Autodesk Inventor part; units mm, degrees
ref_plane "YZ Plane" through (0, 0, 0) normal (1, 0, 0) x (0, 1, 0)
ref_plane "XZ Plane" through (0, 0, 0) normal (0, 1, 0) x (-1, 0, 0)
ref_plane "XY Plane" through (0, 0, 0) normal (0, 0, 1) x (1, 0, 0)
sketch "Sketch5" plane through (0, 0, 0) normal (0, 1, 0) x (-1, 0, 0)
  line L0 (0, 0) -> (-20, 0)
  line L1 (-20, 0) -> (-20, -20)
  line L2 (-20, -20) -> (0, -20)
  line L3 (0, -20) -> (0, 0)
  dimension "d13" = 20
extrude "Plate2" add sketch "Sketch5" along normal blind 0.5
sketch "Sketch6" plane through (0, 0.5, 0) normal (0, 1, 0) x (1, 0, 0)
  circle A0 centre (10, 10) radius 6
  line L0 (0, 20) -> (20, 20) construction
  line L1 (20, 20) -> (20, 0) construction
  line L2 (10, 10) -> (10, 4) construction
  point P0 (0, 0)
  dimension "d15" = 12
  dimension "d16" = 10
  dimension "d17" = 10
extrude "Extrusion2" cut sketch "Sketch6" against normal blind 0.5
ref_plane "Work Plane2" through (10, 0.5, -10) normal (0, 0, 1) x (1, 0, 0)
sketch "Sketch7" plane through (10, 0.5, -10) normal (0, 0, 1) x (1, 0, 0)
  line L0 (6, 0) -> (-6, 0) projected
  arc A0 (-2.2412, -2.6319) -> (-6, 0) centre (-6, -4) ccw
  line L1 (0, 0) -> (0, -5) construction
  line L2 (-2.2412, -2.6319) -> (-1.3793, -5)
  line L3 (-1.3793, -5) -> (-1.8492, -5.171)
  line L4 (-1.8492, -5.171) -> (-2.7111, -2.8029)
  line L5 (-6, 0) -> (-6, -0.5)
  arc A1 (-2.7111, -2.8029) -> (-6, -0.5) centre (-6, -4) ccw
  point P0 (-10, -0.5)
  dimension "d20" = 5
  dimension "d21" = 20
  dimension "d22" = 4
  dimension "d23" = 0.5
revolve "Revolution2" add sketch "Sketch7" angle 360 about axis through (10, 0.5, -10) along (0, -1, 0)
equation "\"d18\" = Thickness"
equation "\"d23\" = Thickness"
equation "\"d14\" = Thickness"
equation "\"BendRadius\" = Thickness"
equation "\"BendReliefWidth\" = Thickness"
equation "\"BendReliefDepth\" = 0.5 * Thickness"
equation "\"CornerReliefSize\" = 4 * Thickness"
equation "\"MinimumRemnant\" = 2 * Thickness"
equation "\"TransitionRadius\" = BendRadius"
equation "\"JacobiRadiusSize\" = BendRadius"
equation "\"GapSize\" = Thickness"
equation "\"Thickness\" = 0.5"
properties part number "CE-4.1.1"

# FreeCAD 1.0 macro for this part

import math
import FreeCAD as App
import Part
import Sketcher
Q = App.Units.Quantity

doc = App.newDocument("Part")
body = doc.addObject("PartDesign::Body", "Body")

# Sketch on XZ plane
sketch1 = body.newObject("Sketcher::SketchObject", "Sketch")
sketch1.AttachmentSupport = (doc.getObject("XZ_Plane"), [""])
sketch1.MapMode = "FlatFace"
sketch1.addGeometry(Part.LineSegment(App.Vector(0, -20, 0), App.Vector(0, 0, 0)), False)
sketch1.addGeometry(Part.LineSegment(App.Vector(0, 0, 0), App.Vector(20, 0, 0)), False)
sketch1.addGeometry(Part.LineSegment(App.Vector(20, 0, 0), App.Vector(20, -20, 0)), False)
sketch1.addGeometry(Part.LineSegment(App.Vector(20, -20, 0), App.Vector(0, -20, 0)), False)
sketch1.addConstraint(Sketcher.Constraint("Coincident", 0, 2, 1, 1))
sketch1.addConstraint(Sketcher.Constraint("Coincident", 1, 2, 2, 1))
sketch1.addConstraint(Sketcher.Constraint("Coincident", 2, 2, 3, 1))
sketch1.addConstraint(Sketcher.Constraint("Coincident", 3, 2, 0, 1))
sketch1.addConstraint(Sketcher.Constraint("Vertical", 0))
sketch1.addConstraint(Sketcher.Constraint("Horizontal", 1))
sketch1.addConstraint(Sketcher.Constraint("Vertical", 2))
sketch1.addConstraint(Sketcher.Constraint("Horizontal", 3))
sketch1.addConstraint(Sketcher.Constraint("Coincident", 0, 2, -1, 1))
sketch1.addConstraint(Sketcher.Constraint("Equal", 3, 0))
sketch1.addConstraint(Sketcher.Constraint("DistanceX", 1, 1, 1, 2, 20.0))
pad1 = body.newObject("PartDesign::Pad", "Pad")
pad1.Profile = sketch1
pad1.Length = 0.5
pad1.Reversed = True

# Sketch on XZ plane
sketch2 = body.newObject("Sketcher::SketchObject", "Sketch001")
sketch2.AttachmentSupport = (doc.getObject("XZ_Plane"), [""])
sketch2.MapMode = "FlatFace"
sketch2.AttachmentOffset = App.Placement(App.Vector(0, 0, -0.5), App.Rotation())
sketch2.addGeometry(Part.Circle(App.Vector(10, -10, 0), App.Vector(0, 0, 1), 6), False)
sketch2.addConstraint(Sketcher.Constraint("Diameter", 0, 12.0))
sketch2.addConstraint(Sketcher.Constraint("DistanceX", -1, 1, 0, 3, 10.0))
sketch2.addConstraint(Sketcher.Constraint("DistanceY", 0, 3, -1, 1, 10.0))
pocket1 = body.newObject("PartDesign::Pocket", "Pocket")
pocket1.Profile = sketch2
pocket1.Length = 0.5
pocket1.Reversed = True

# Sketch on XY plane
sketch3 = body.newObject("Sketcher::SketchObject", "Sketch002")
sketch3.AttachmentSupport = (doc.getObject("XY_Plane"), [""])
sketch3.MapMode = "FlatFace"
sketch3.AttachmentOffset = App.Placement(App.Vector(0, 0, -10), App.Rotation())
sketch3.addGeometry(Part.LineSegment(App.Vector(8.6207, -4.5, 0), App.Vector(7.7588, -2.1319, 0)), False)
sketch3.addGeometry(Part.ArcOfCircle(Part.Circle(App.Vector(4, -3.5, 0), App.Vector(0, 0, 1), 4.000034), math.radians(20.000117), math.radians(90)), False)
sketch3.addGeometry(Part.LineSegment(App.Vector(4, 0.5, 0), App.Vector(4, 0, 0)), False)
sketch3.addGeometry(Part.ArcOfCircle(Part.Circle(App.Vector(4, -3.5, 0), App.Vector(0, 0, 1), 3.499987), math.radians(20.000589), math.radians(90)), False)
sketch3.addGeometry(Part.LineSegment(App.Vector(7.2889, -2.3029, 0), App.Vector(8.1508, -4.671, 0)), False)
sketch3.addGeometry(Part.LineSegment(App.Vector(8.1508, -4.671, 0), App.Vector(8.6207, -4.5, 0)), False)
sketch3.addGeometry(Part.LineSegment(App.Vector(10, 0.5, 0), App.Vector(10, -4.671, 0)), True)  # axis
sketch3.addConstraint(Sketcher.Constraint("Tangent", 0, 2, 1, 1))
sketch3.addConstraint(Sketcher.Constraint("Coincident", 1, 2, 2, 1))
sketch3.addConstraint(Sketcher.Constraint("Coincident", 2, 2, 3, 2))
sketch3.addConstraint(Sketcher.Constraint("Tangent", 3, 1, 4, 1))
sketch3.addConstraint(Sketcher.Constraint("Coincident", 4, 2, 5, 1))
sketch3.addConstraint(Sketcher.Constraint("Coincident", 5, 2, 0, 1))
sketch3.addConstraint(Sketcher.Constraint("Vertical", 2))
sketch3.addConstraint(Sketcher.Constraint("Vertical", 6))
sketch3.addConstraint(Sketcher.Constraint("Coincident", 3, 3, 1, 3))
sketch3.addConstraint(Sketcher.Constraint("PointOnObject", 2, 2, -1))
sketch3.addConstraint(Sketcher.Constraint("Parallel", 0, 4))
sketch3.addConstraint(Sketcher.Constraint("Perpendicular", 4, 5))
sketch3.addConstraint(Sketcher.Constraint("Horizontal", 1, 2, 6, 1))
sketch3.addConstraint(Sketcher.Constraint("Horizontal", 4, 2, 6, 2))
sketch3.addConstraint(Sketcher.Constraint("Vertical", 3, 3, 1, 2))
sketch3.addConstraint(Sketcher.Constraint("Radius", 1, 4.0))
sketch3.addConstraint(Sketcher.Constraint("DistanceY", 2, 2, 2, 1, 0.5))
sketch3.addConstraint(Sketcher.Constraint("DistanceX", -1, 1, 1, 3, 4.0))
sketch3.addConstraint(Sketcher.Constraint("DistanceY", 5, 2, 6, 1, 5.0))
sketch3.addConstraint(Sketcher.Constraint("Angle", 0, Q("109.9996 deg")))
sketch3.addConstraint(Sketcher.Constraint("DistanceX", -1, 1, 6, 1, 10.0))
revolution = body.newObject("PartDesign::Revolution", "Revolution")
revolution.Profile = sketch3
revolution.ReferenceAxis = (sketch3, ["Axis0"])
revolution.Angle = 360

doc.recompute()
